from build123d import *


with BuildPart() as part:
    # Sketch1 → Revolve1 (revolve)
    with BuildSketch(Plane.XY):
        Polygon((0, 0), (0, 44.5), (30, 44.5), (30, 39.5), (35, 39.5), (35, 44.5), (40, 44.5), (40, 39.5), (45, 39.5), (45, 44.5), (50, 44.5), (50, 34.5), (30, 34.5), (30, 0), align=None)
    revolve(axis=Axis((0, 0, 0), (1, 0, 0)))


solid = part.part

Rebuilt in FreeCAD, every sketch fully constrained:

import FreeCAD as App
import Part
import Sketcher
Q = App.Units.Quantity

doc = App.newDocument("Part")
body = doc.addObject("PartDesign::Body", "Body")

# Sketch on XY plane
sketch1 = body.newObject("Sketcher::SketchObject", "Sketch")
sketch1.AttachmentSupport = (doc.getObject("XY_Plane"), [""])
sketch1.MapMode = "FlatFace"
sketch1.addGeometry(Part.LineSegment(App.Vector(0, 44, 0), App.Vector(0, 0, 0)), False)
sketch1.addGeometry(Part.LineSegment(App.Vector(0, 0, 0), App.Vector(30, 0, 0)), False)
sketch1.addGeometry(Part.LineSegment(App.Vector(30, 0, 0), App.Vector(30, 34, 0)), False)
sketch1.addGeometry(Part.LineSegment(App.Vector(30, 34, 0), App.Vector(50, 34, 0)), False)
sketch1.addGeometry(Part.LineSegment(App.Vector(50, 34, 0), App.Vector(50, 44, 0)), False)
sketch1.addGeometry(Part.LineSegment(App.Vector(50, 44, 0), App.Vector(45, 44, 0)), False)
sketch1.addGeometry(Part.LineSegment(App.Vector(45, 44, 0), App.Vector(45, 40, 0)), False)
sketch1.addGeometry(Part.LineSegment(App.Vector(45, 40, 0), App.Vector(40, 40, 0)), False)
sketch1.addGeometry(Part.LineSegment(App.Vector(40, 40, 0), App.Vector(40, 44, 0)), False)
sketch1.addGeometry(Part.LineSegment(App.Vector(40, 44, 0), App.Vector(35, 44, 0)), False)
sketch1.addGeometry(Part.LineSegment(App.Vector(35, 44, 0), App.Vector(35, 40, 0)), False)
sketch1.addGeometry(Part.LineSegment(App.Vector(35, 40, 0), App.Vector(30, 40, 0)), False)
sketch1.addGeometry(Part.LineSegment(App.Vector(30, 40, 0), App.Vector(30, 44, 0)), False)
sketch1.addGeometry(Part.LineSegment(App.Vector(30, 44, 0), App.Vector(0, 44, 0)), False)
sketch1.addConstraint(Sketcher.Constraint("Coincident", 0, 2, 1, 1))
sketch1.addConstraint(Sketcher.Constraint("Coincident", 1, 2, 2, 1))
sketch1.addConstraint(Sketcher.Constraint("Coincident", 2, 2, 3, 1))
sketch1.addConstraint(Sketcher.Constraint("Coincident", 3, 2, 4, 1))
sketch1.addConstraint(Sketcher.Constraint("Coincident", 4, 2, 5, 1))
sketch1.addConstraint(Sketcher.Constraint("Coincident", 5, 2, 6, 1))
sketch1.addConstraint(Sketcher.Constraint("Coincident", 6, 2, 7, 1))
sketch1.addConstraint(Sketcher.Constraint("Coincident", 7, 2, 8, 1))
sketch1.addConstraint(Sketcher.Constraint("Coincident", 8, 2, 9, 1))
sketch1.addConstraint(Sketcher.Constraint("Coincident", 9, 2, 10, 1))
sketch1.addConstraint(Sketcher.Constraint("Coincident", 10, 2, 11, 1))
sketch1.addConstraint(Sketcher.Constraint("Coincident", 11, 2, 12, 1))
sketch1.addConstraint(Sketcher.Constraint("Coincident", 12, 2, 13, 1))
sketch1.addConstraint(Sketcher.Constraint("Coincident", 13, 2, 0, 1))
sketch1.addConstraint(Sketcher.Constraint("Vertical", 0))
sketch1.addConstraint(Sketcher.Constraint("Horizontal", 1))
sketch1.addConstraint(Sketcher.Constraint("Vertical", 2))
sketch1.addConstraint(Sketcher.Constraint("Horizontal", 3))
sketch1.addConstraint(Sketcher.Constraint("Vertical", 4))
sketch1.addConstraint(Sketcher.Constraint("Horizontal", 5))
sketch1.addConstraint(Sketcher.Constraint("Vertical", 6))
sketch1.addConstraint(Sketcher.Constraint("Horizontal", 7))
sketch1.addConstraint(Sketcher.Constraint("Vertical", 8))
sketch1.addConstraint(Sketcher.Constraint("Horizontal", 9))
sketch1.addConstraint(Sketcher.Constraint("Vertical", 10))
sketch1.addConstraint(Sketcher.Constraint("Horizontal", 11))
sketch1.addConstraint(Sketcher.Constraint("Vertical", 12))
sketch1.addConstraint(Sketcher.Constraint("Horizontal", 13))
sketch1.addConstraint(Sketcher.Constraint("Coincident", 0, 2, -1, 1))
sketch1.addConstraint(Sketcher.Constraint("Horizontal", 5, 2, 8, 2))
sketch1.addConstraint(Sketcher.Constraint("Horizontal", 7, 2, 10, 2))
sketch1.addConstraint(Sketcher.Constraint("Horizontal", 9, 2, 12, 2))
sketch1.addConstraint(Sketcher.Constraint("Vertical", 2, 2, 11, 2))
sketch1.addConstraint(Sketcher.Constraint("Equal", 5, 7))
sketch1.addConstraint(Sketcher.Constraint("Equal", 7, 9))
sketch1.addConstraint(Sketcher.Constraint("Equal", 9, 11))
sketch1.addConstraint(Sketcher.Constraint("Equal", 11, 6))
sketch1.addConstraint(Sketcher.Constraint("DistanceX", 1, 1, 1, 2, Q("30 mm")))
sketch1.addConstraint(Sketcher.Constraint("DistanceX", 3, 1, 3, 2, Q("20 mm")))
sketch1.addConstraint(Sketcher.Constraint("DistanceY", 4, 1, 4, 2, Q("10 mm")))
sketch1.addConstraint(Sketcher.Constraint("DistanceY", 0, 2, 0, 1, Q("44.5 mm")))
revolution = body.newObject("PartDesign::Revolution", "Revolution")
revolution.Profile = sketch1
revolution.ReferenceAxis = (sketch1, ["H_Axis"])
revolution.Angle = 360

doc.recompute()
